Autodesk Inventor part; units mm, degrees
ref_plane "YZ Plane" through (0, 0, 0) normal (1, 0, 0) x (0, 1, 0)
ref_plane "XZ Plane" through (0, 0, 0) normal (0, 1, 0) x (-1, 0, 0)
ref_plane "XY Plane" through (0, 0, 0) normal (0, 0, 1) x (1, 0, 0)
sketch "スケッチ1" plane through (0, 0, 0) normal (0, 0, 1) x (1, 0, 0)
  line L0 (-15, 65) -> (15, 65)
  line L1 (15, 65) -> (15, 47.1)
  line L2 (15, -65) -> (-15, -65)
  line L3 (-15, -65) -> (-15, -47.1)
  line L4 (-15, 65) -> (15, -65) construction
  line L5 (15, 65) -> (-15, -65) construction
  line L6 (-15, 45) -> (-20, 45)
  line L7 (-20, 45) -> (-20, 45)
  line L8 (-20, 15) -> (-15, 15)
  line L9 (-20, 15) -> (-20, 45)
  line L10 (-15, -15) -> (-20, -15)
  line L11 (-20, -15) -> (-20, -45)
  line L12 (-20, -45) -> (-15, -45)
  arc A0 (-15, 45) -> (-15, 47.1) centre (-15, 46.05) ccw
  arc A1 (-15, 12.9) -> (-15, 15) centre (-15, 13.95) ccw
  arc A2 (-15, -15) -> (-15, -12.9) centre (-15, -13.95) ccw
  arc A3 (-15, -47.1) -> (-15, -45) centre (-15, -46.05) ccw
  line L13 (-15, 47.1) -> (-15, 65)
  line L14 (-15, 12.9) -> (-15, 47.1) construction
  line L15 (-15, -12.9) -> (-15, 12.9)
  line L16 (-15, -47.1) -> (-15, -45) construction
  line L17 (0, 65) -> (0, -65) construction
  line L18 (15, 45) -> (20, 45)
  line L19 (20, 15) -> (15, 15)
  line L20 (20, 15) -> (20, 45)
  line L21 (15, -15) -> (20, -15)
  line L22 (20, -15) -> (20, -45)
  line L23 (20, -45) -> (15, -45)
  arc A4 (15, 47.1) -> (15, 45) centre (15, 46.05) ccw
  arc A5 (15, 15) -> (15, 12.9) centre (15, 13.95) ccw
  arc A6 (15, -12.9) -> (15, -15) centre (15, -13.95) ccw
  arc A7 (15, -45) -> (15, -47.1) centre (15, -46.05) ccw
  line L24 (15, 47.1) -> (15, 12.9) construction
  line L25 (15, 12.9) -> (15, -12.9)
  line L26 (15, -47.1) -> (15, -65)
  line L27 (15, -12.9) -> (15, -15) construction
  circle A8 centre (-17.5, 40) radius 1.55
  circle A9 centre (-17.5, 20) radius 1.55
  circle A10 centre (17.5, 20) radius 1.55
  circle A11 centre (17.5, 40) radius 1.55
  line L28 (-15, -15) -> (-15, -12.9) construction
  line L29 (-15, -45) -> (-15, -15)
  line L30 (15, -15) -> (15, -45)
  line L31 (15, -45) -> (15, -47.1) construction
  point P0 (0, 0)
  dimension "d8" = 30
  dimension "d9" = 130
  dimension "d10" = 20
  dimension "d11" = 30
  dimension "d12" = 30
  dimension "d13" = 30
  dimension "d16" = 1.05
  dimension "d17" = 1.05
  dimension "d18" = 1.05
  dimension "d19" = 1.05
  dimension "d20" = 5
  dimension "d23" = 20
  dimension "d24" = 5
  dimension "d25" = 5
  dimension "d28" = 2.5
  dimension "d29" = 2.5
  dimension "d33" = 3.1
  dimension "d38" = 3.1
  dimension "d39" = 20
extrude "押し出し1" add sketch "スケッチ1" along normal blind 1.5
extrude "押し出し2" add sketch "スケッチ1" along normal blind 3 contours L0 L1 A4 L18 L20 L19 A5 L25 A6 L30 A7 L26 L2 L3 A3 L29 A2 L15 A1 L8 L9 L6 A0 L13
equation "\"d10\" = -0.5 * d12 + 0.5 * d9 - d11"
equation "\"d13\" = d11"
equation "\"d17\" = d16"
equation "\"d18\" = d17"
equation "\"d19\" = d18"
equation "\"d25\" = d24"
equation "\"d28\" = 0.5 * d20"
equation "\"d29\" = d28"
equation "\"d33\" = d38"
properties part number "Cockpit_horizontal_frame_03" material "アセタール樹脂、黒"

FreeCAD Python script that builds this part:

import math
import FreeCAD as App
import Part
import Sketcher
from FreeCAD import Vector
Q = App.Units.Quantity

doc = App.newDocument("Part")
body = doc.addObject("PartDesign::Body", "Body")

# Sketch on XY plane
sketch1 = doc.addObject("Sketcher::SketchObject", "Sketch")
body.addObject(sketch1)
sketch1.AttachmentSupport = (doc.XY_Plane, [""])
sketch1.MapMode = "FlatFace"
sketch1.addGeometry(Part.LineSegment(Vector(15, 65, 0), Vector(-15, 65, 0)), False)
sketch1.addGeometry(Part.LineSegment(Vector(-15, 65, 0), Vector(-15, 47.1, 0)), False)
sketch1.addGeometry(Part.ArcOfCircle(Part.Circle(Vector(-15, 46, 0), Vector(0, 0, 1), 1), math.radians(-90), math.radians(90)), False)
sketch1.addGeometry(Part.LineSegment(Vector(-15, 45, 0), Vector(-20, 45, 0)), False)
sketch1.addGeometry(Part.LineSegment(Vector(-20, 45, 0), Vector(-20, 15, 0)), False)
sketch1.addGeometry(Part.LineSegment(Vector(-20, 15, 0), Vector(-15, 15, 0)), False)
sketch1.addGeometry(Part.ArcOfCircle(Part.Circle(Vector(-15, 13.9, 0), Vector(0, 0, 1), 1), math.radians(-90), math.radians(90)), False)
sketch1.addGeometry(Part.LineSegment(Vector(-15, 12.9, 0), Vector(-15, -12.9, 0)), False)
sketch1.addGeometry(Part.ArcOfCircle(Part.Circle(Vector(-15, -13.9, 0), Vector(0, 0, 1), 1.1), math.radians(-90), math.radians(90)), False)
sketch1.addGeometry(Part.LineSegment(Vector(-15, -15, 0), Vector(-20, -15, 0)), False)
sketch1.addGeometry(Part.LineSegment(Vector(-20, -15, 0), Vector(-20, -45, 0)), False)
sketch1.addGeometry(Part.LineSegment(Vector(-20, -45, 0), Vector(-15, -45, 0)), False)
sketch1.addGeometry(Part.ArcOfCircle(Part.Circle(Vector(-15, -46, 0), Vector(0, 0, 1), 1.1), math.radians(-90), math.radians(90)), False)
sketch1.addGeometry(Part.LineSegment(Vector(-15, -47.1, 0), Vector(-15, -65, 0)), False)
sketch1.addGeometry(Part.LineSegment(Vector(-15, -65, 0), Vector(15, -65, 0)), False)
sketch1.addGeometry(Part.LineSegment(Vector(15, -65, 0), Vector(15, -47.1, 0)), False)
sketch1.addGeometry(Part.ArcOfCircle(Part.Circle(Vector(15, -46, 0), Vector(0, 0, 1), 1), math.radians(90), math.radians(270)), False)
sketch1.addGeometry(Part.LineSegment(Vector(15, -45, 0), Vector(20, -45, 0)), False)
sketch1.addGeometry(Part.LineSegment(Vector(20, -45, 0), Vector(20, -15, 0)), False)
sketch1.addGeometry(Part.LineSegment(Vector(20, -15, 0), Vector(15, -15, 0)), False)
sketch1.addGeometry(Part.ArcOfCircle(Part.Circle(Vector(15, -13.9, 0), Vector(0, 0, 1), 1), math.radians(90), math.radians(270)), False)
sketch1.addGeometry(Part.LineSegment(Vector(15, -12.9, 0), Vector(15, 12.9, 0)), False)
sketch1.addGeometry(Part.ArcOfCircle(Part.Circle(Vector(15, 13.9, 0), Vector(0, 0, 1), 1.1), math.radians(90), math.radians(270)), False)
sketch1.addGeometry(Part.LineSegment(Vector(15, 15, 0), Vector(20, 15, 0)), False)
sketch1.addGeometry(Part.LineSegment(Vector(20, 15, 0), Vector(20, 45, 0)), False)
sketch1.addGeometry(Part.LineSegment(Vector(20, 45, 0), Vector(15, 45, 0)), False)
sketch1.addGeometry(Part.ArcOfCircle(Part.Circle(Vector(15, 46, 0), Vector(0, 0, 1), 1.1), math.radians(90), math.radians(270)), False)
sketch1.addGeometry(Part.LineSegment(Vector(15, 47.1, 0), Vector(15, 65, 0)), False)
sketch1.addGeometry(Part.Circle(Vector(-17.5, 20, 0), Vector(0, 0, 1), 1.6), False)
sketch1.addGeometry(Part.Circle(Vector(-17.5, 40, 0), Vector(0, 0, 1), 1.6), False)
sketch1.addGeometry(Part.Circle(Vector(17.5, 20, 0), Vector(0, 0, 1), 1.6), False)
sketch1.addGeometry(Part.Circle(Vector(17.5, 40, 0), Vector(0, 0, 1), 1.6), False)
sketch1.addConstraint(Sketcher.Constraint("Coincident", 0, 2, 1, 1))
sketch1.addConstraint(Sketcher.Constraint("Coincident", 1, 2, 2, 2))
sketch1.addConstraint(Sketcher.Constraint("Tangent", 2, 1, 3, 1))
sketch1.addConstraint(Sketcher.Constraint("Coincident", 3, 2, 4, 1))
sketch1.addConstraint(Sketcher.Constraint("Coincident", 4, 2, 5, 1))
sketch1.addConstraint(Sketcher.Constraint("Tangent", 5, 2, 6, 2))
sketch1.addConstraint(Sketcher.Constraint("Coincident", 6, 1, 7, 1))
sketch1.addConstraint(Sketcher.Constraint("Coincident", 7, 2, 8, 2))
sketch1.addConstraint(Sketcher.Constraint("Tangent", 8, 1, 9, 1))
sketch1.addConstraint(Sketcher.Constraint("Coincident", 9, 2, 10, 1))
sketch1.addConstraint(Sketcher.Constraint("Coincident", 10, 2, 11, 1))
sketch1.addConstraint(Sketcher.Constraint("Tangent", 11, 2, 12, 2))
sketch1.addConstraint(Sketcher.Constraint("Coincident", 12, 1, 13, 1))
sketch1.addConstraint(Sketcher.Constraint("Coincident", 13, 2, 14, 1))
sketch1.addConstraint(Sketcher.Constraint("Coincident", 14, 2, 15, 1))
sketch1.addConstraint(Sketcher.Constraint("Coincident", 15, 2, 16, 2))
sketch1.addConstraint(Sketcher.Constraint("Tangent", 16, 1, 17, 1))
sketch1.addConstraint(Sketcher.Constraint("Coincident", 17, 2, 18, 1))
sketch1.addConstraint(Sketcher.Constraint("Coincident", 18, 2, 19, 1))
sketch1.addConstraint(Sketcher.Constraint("Tangent", 19, 2, 20, 2))
sketch1.addConstraint(Sketcher.Constraint("Coincident", 20, 1, 21, 1))
sketch1.addConstraint(Sketcher.Constraint("Coincident", 21, 2, 22, 2))
sketch1.addConstraint(Sketcher.Constraint("Tangent", 22, 1, 23, 1))
sketch1.addConstraint(Sketcher.Constraint("Coincident", 23, 2, 24, 1))
sketch1.addConstraint(Sketcher.Constraint("Coincident", 24, 2, 25, 1))
sketch1.addConstraint(Sketcher.Constraint("Tangent", 25, 2, 26, 2))
sketch1.addConstraint(Sketcher.Constraint("Coincident", 26, 1, 27, 1))
sketch1.addConstraint(Sketcher.Constraint("Coincident", 27, 2, 0, 1))
sketch1.addConstraint(Sketcher.Constraint("Horizontal", 0))
sketch1.addConstraint(Sketcher.Constraint("Vertical", 1))
sketch1.addConstraint(Sketcher.Constraint("Horizontal", 3))
sketch1.addConstraint(Sketcher.Constraint("Vertical", 4))
sketch1.addConstraint(Sketcher.Constraint("Horizontal", 5))
sketch1.addConstraint(Sketcher.Constraint("Vertical", 7))
sketch1.addConstraint(Sketcher.Constraint("Horizontal", 9))
sketch1.addConstraint(Sketcher.Constraint("Vertical", 10))
sketch1.addConstraint(Sketcher.Constraint("Horizontal", 11))
sketch1.addConstraint(Sketcher.Constraint("Vertical", 13))
sketch1.addConstraint(Sketcher.Constraint("Horizontal", 14))
sketch1.addConstraint(Sketcher.Constraint("Vertical", 15))
sketch1.addConstraint(Sketcher.Constraint("Horizontal", 17))
sketch1.addConstraint(Sketcher.Constraint("Vertical", 18))
sketch1.addConstraint(Sketcher.Constraint("Horizontal", 19))
sketch1.addConstraint(Sketcher.Constraint("Vertical", 21))
sketch1.addConstraint(Sketcher.Constraint("Horizontal", 23))
sketch1.addConstraint(Sketcher.Constraint("Vertical", 24))
sketch1.addConstraint(Sketcher.Constraint("Horizontal", 25))
sketch1.addConstraint(Sketcher.Constraint("Vertical", 27))
sketch1.addConstraint(Sketcher.Constraint("Equal", 2, 6))
sketch1.addConstraint(Sketcher.Constraint("Equal", 6, 8))
sketch1.addConstraint(Sketcher.Constraint("Equal", 8, 12))
sketch1.addConstraint(Sketcher.Constraint("Equal", 12, 16))
sketch1.addConstraint(Sketcher.Constraint("Equal", 16, 20))
sketch1.addConstraint(Sketcher.Constraint("Equal", 20, 22))
sketch1.addConstraint(Sketcher.Constraint("Equal", 22, 26))
sketch1.addConstraint(Sketcher.Constraint("Equal", 28, 29))
sketch1.addConstraint(Sketcher.Constraint("Equal", 29, 30))
sketch1.addConstraint(Sketcher.Constraint("Equal", 30, 31))
sketch1.addConstraint(Sketcher.Constraint("Symmetric", 2, 3, 16, 3, -1, 1))
sketch1.addConstraint(Sketcher.Constraint("Symmetric", 6, 3, 20, 3, -1, 1))
sketch1.addConstraint(Sketcher.Constraint("Symmetric", 8, 3, 22, 3, -1, 1))
sketch1.addConstraint(Sketcher.Constraint("Symmetric", 12, 3, 26, 3, -1, 1))
sketch1.addConstraint(Sketcher.Constraint("Symmetric", 0, 2, 14, 2, -1, 1))
sketch1.addConstraint(Sketcher.Constraint("Symmetric", 12, 3, 16, 3, -2))
sketch1.addConstraint(Sketcher.Constraint("Symmetric", 8, 3, 20, 3, -2))
sketch1.addConstraint(Sketcher.Constraint("Symmetric", 28, 3, 30, 3, -2))
sketch1.addConstraint(Sketcher.Constraint("Symmetric", 29, 3, 31, 3, -2))
sketch1.addConstraint(Sketcher.Constraint("Vertical", 2, 3, 6, 3))
sketch1.addConstraint(Sketcher.Constraint("Vertical", 28, 3, 29, 3))
sketch1.addConstraint(Sketcher.Constraint("Vertical", 12, 3, 0, 2))
sketch1.addConstraint(Sketcher.Constraint("Vertical", 5, 2, 6, 1))
sketch1.addConstraint(Sketcher.Constraint("Vertical", 4, 2, 9, 2))
sketch1.addConstraint(Sketcher.Constraint("Vertical", 11, 2, 12, 1))
sketch1.addConstraint(Sketcher.Constraint("Vertical", 19, 2, 20, 1))
sketch1.addConstraint(Sketcher.Constraint("Vertical", 18, 2, 23, 2))
sketch1.addConstraint(Sketcher.Constraint("Vertical", 25, 2, 26, 1))
sketch1.addConstraint(Sketcher.Constraint("Equal", 11, 17))
sketch1.addConstraint(Sketcher.Constraint("Equal", 14, 4))
sketch1.addConstraint(Sketcher.Constraint("Diameter", 28, Q("3.1 mm")))
sketch1.addConstraint(Sketcher.Constraint("DistanceX", 0, 2, 0, 1, Q("30 mm")))
sketch1.addConstraint(Sketcher.Constraint("DistanceX", 3, 2, 3, 1, Q("5 mm")))
sketch1.addConstraint(Sketcher.Constraint("Radius", 2, Q("1.05 mm")))
sketch1.addConstraint(Sketcher.Constraint("DistanceY", -1, 1, 28, 3, Q("20 mm")))
sketch1.addConstraint(Sketcher.Constraint("DistanceY", 28, 3, 29, 3, Q("20 mm")))
sketch1.addConstraint(Sketcher.Constraint("DistanceY", 29, 3, 2, 1, Q("5 mm")))
sketch1.addConstraint(Sketcher.Constraint("DistanceY", 2, 1, 0, 2, Q("20 mm")))
sketch1.addConstraint(Sketcher.Constraint("DistanceX", 28, 3, 6, 3, Q("2.5 mm")))
pad1 = doc.addObject("PartDesign::Pad", "Pad")
body.addObject(pad1)
pad1.Profile = sketch1
pad1.Length = 1.5

# Sketch on XY plane
sketch2 = doc.addObject("Sketcher::SketchObject", "Sketch001")
body.addObject(sketch2)
sketch2.AttachmentSupport = (doc.XY_Plane, [""])
sketch2.MapMode = "FlatFace"
sketch2.addGeometry(Part.LineSegment(Vector(15, 65, 0), Vector(-15, 65, 0)), False)
sketch2.addGeometry(Part.LineSegment(Vector(-15, 65, 0), Vector(-15, 47.1, 0)), False)
sketch2.addGeometry(Part.ArcOfCircle(Part.Circle(Vector(-15, 46, 0), Vector(0, 0, 1), 1), math.radians(-90), math.radians(90)), False)
sketch2.addGeometry(Part.LineSegment(Vector(-15, 45, 0), Vector(-20, 45, 0)), False)
sketch2.addGeometry(Part.LineSegment(Vector(-20, 45, 0), Vector(-20, 15, 0)), False)
sketch2.addGeometry(Part.LineSegment(Vector(-20, 15, 0), Vector(-15, 15, 0)), False)
sketch2.addGeometry(Part.ArcOfCircle(Part.Circle(Vector(-15, 13.9, 0), Vector(0, 0, 1), 1), math.radians(-90), math.radians(90)), False)
sketch2.addGeometry(Part.LineSegment(Vector(-15, 12.9, 0), Vector(-15, -12.9, 0)), False)
sketch2.addGeometry(Part.ArcOfCircle(Part.Circle(Vector(-15, -13.9, 0), Vector(0, 0, 1), 1.1), math.radians(-90), math.radians(90)), False)
sketch2.addGeometry(Part.LineSegment(Vector(-15, -15, 0), Vector(-15, -45, 0)), False)
sketch2.addGeometry(Part.ArcOfCircle(Part.Circle(Vector(-15, -46, 0), Vector(0, 0, 1), 1.1), math.radians(-90), math.radians(90)), False)
sketch2.addGeometry(Part.LineSegment(Vector(-15, -47.1, 0), Vector(-15, -65, 0)), False)
sketch2.addGeometry(Part.LineSegment(Vector(-15, -65, 0), Vector(15, -65, 0)), False)
sketch2.addGeometry(Part.LineSegment(Vector(15, -65, 0), Vector(15, -47.1, 0)), False)
sketch2.addGeometry(Part.ArcOfCircle(Part.Circle(Vector(15, -46, 0), Vector(0, 0, 1), 1), math.radians(90), math.radians(270)), False)
sketch2.addGeometry(Part.LineSegment(Vector(15, -45, 0), Vector(15, -15, 0)), False)
sketch2.addGeometry(Part.ArcOfCircle(Part.Circle(Vector(15, -13.9, 0), Vector(0, 0, 1), 1), math.radians(90), math.radians(270)), False)
sketch2.addGeometry(Part.LineSegment(Vector(15, -12.9, 0), Vector(15, 12.9, 0)), False)
sketch2.addGeometry(Part.ArcOfCircle(Part.Circle(Vector(15, 13.9, 0), Vector(0, 0, 1), 1.1), math.radians(90), math.radians(270)), False)
sketch2.addGeometry(Part.LineSegment(Vector(15, 15, 0), Vector(20, 15, 0)), False)
sketch2.addGeometry(Part.LineSegment(Vector(20, 15, 0), Vector(20, 45, 0)), False)
sketch2.addGeometry(Part.LineSegment(Vector(20, 45, 0), Vector(15, 45, 0)), False)
sketch2.addGeometry(Part.ArcOfCircle(Part.Circle(Vector(15, 46, 0), Vector(0, 0, 1), 1.1), math.radians(90), math.radians(270)), False)
sketch2.addGeometry(Part.LineSegment(Vector(15, 47.1, 0), Vector(15, 65, 0)), False)
sketch2.addGeometry(Part.Circle(Vector(-17.5, 20, 0), Vector(0, 0, 1), 1.6), False)
sketch2.addGeometry(Part.Circle(Vector(-17.5, 40, 0), Vector(0, 0, 1), 1.6), False)
sketch2.addGeometry(Part.Circle(Vector(17.5, 20, 0), Vector(0, 0, 1), 1.6), False)
sketch2.addGeometry(Part.Circle(Vector(17.5, 40, 0), Vector(0, 0, 1), 1.6), False)
sketch2.addConstraint(Sketcher.Constraint("Coincident", 0, 2, 1, 1))
sketch2.addConstraint(Sketcher.Constraint("Coincident", 1, 2, 2, 2))
sketch2.addConstraint(Sketcher.Constraint("Tangent", 2, 1, 3, 1))
sketch2.addConstraint(Sketcher.Constraint("Coincident", 3, 2, 4, 1))
sketch2.addConstraint(Sketcher.Constraint("Coincident", 4, 2, 5, 1))
sketch2.addConstraint(Sketcher.Constraint("Tangent", 5, 2, 6, 2))
sketch2.addConstraint(Sketcher.Constraint("Coincident", 6, 1, 7, 1))
sketch2.addConstraint(Sketcher.Constraint("Coincident", 7, 2, 8, 2))
sketch2.addConstraint(Sketcher.Constraint("Coincident", 8, 1, 9, 1))
sketch2.addConstraint(Sketcher.Constraint("Coincident", 9, 2, 10, 2))
sketch2.addConstraint(Sketcher.Constraint("Coincident", 10, 1, 11, 1))
sketch2.addConstraint(Sketcher.Constraint("Coincident", 11, 2, 12, 1))
sketch2.addConstraint(Sketcher.Constraint("Coincident", 12, 2, 13, 1))
sketch2.addConstraint(Sketcher.Constraint("Coincident", 13, 2, 14, 2))
sketch2.addConstraint(Sketcher.Constraint("Coincident", 14, 1, 15, 1))
sketch2.addConstraint(Sketcher.Constraint("Coincident", 15, 2, 16, 2))
sketch2.addConstraint(Sketcher.Constraint("Coincident", 16, 1, 17, 1))
sketch2.addConstraint(Sketcher.Constraint("Coincident", 17, 2, 18, 2))
sketch2.addConstraint(Sketcher.Constraint("Tangent", 18, 1, 19, 1))
sketch2.addConstraint(Sketcher.Constraint("Coincident", 19, 2, 20, 1))
sketch2.addConstraint(Sketcher.Constraint("Coincident", 20, 2, 21, 1))
sketch2.addConstraint(Sketcher.Constraint("Tangent", 21, 2, 22, 2))
sketch2.addConstraint(Sketcher.Constraint("Coincident", 22, 1, 23, 1))
sketch2.addConstraint(Sketcher.Constraint("Coincident", 23, 2, 0, 1))
sketch2.addConstraint(Sketcher.Constraint("Horizontal", 0))
sketch2.addConstraint(Sketcher.Constraint("Vertical", 1))
sketch2.addConstraint(Sketcher.Constraint("Horizontal", 3))
sketch2.addConstraint(Sketcher.Constraint("Vertical", 4))
sketch2.addConstraint(Sketcher.Constraint("Horizontal", 5))
sketch2.addConstraint(Sketcher.Constraint("Vertical", 7))
sketch2.addConstraint(Sketcher.Constraint("Vertical", 9))
sketch2.addConstraint(Sketcher.Constraint("Vertical", 11))
sketch2.addConstraint(Sketcher.Constraint("Horizontal", 12))
sketch2.addConstraint(Sketcher.Constraint("Vertical", 13))
sketch2.addConstraint(Sketcher.Constraint("Vertical", 15))
sketch2.addConstraint(Sketcher.Constraint("Vertical", 17))
sketch2.addConstraint(Sketcher.Constraint("Horizontal", 19))
sketch2.addConstraint(Sketcher.Constraint("Vertical", 20))
sketch2.addConstraint(Sketcher.Constraint("Horizontal", 21))
sketch2.addConstraint(Sketcher.Constraint("Vertical", 23))
sketch2.addConstraint(Sketcher.Constraint("Equal", 2, 6))
sketch2.addConstraint(Sketcher.Constraint("Equal", 6, 8))
sketch2.addConstraint(Sketcher.Constraint("Equal", 8, 10))
sketch2.addConstraint(Sketcher.Constraint("Equal", 10, 14))
sketch2.addConstraint(Sketcher.Constraint("Equal", 14, 16))
sketch2.addConstraint(Sketcher.Constraint("Equal", 16, 18))
sketch2.addConstraint(Sketcher.Constraint("Equal", 18, 22))
sketch2.addConstraint(Sketcher.Constraint("Equal", 24, 25))
sketch2.addConstraint(Sketcher.Constraint("Equal", 25, 26))
sketch2.addConstraint(Sketcher.Constraint("Equal", 26, 27))
sketch2.addConstraint(Sketcher.Constraint("Symmetric", 2, 3, 14, 3, -1, 1))
sketch2.addConstraint(Sketcher.Constraint("Symmetric", 6, 3, 16, 3, -1, 1))
sketch2.addConstraint(Sketcher.Constraint("Symmetric", 8, 3, 18, 3, -1, 1))
sketch2.addConstraint(Sketcher.Constraint("Symmetric", 10, 3, 22, 3, -1, 1))
sketch2.addConstraint(Sketcher.Constraint("Symmetric", 0, 2, 12, 2, -1, 1))
sketch2.addConstraint(Sketcher.Constraint("Symmetric", 10, 3, 14, 3, -2))
sketch2.addConstraint(Sketcher.Constraint("Symmetric", 8, 3, 16, 3, -2))
sketch2.addConstraint(Sketcher.Constraint("Symmetric", 24, 3, 26, 3, -2))
sketch2.addConstraint(Sketcher.Constraint("Symmetric", 25, 3, 27, 3, -2))
sketch2.addConstraint(Sketcher.Constraint("Vertical", 2, 3, 6, 3))
sketch2.addConstraint(Sketcher.Constraint("Vertical", 24, 3, 25, 3))
sketch2.addConstraint(Sketcher.Constraint("Vertical", 10, 3, 0, 2))
sketch2.addConstraint(Sketcher.Constraint("Vertical", 5, 2, 6, 1))
sketch2.addConstraint(Sketcher.Constraint("Vertical", 7, 2, 8, 1))
sketch2.addConstraint(Sketcher.Constraint("Vertical", 9, 2, 10, 1))
sketch2.addConstraint(Sketcher.Constraint("Vertical", 13, 2, 14, 1))
sketch2.addConstraint(Sketcher.Constraint("Vertical", 15, 2, 16, 1))
sketch2.addConstraint(Sketcher.Constraint("Vertical", 21, 2, 22, 1))
sketch2.addConstraint(Sketcher.Constraint("Equal", 5, 19))
sketch2.addConstraint(Sketcher.Constraint("Equal", 12, 4))
sketch2.addConstraint(Sketcher.Constraint("Diameter", 24, Q("3.1 mm")))
sketch2.addConstraint(Sketcher.Constraint("DistanceX", 0, 2, 0, 1, Q("30 mm")))
sketch2.addConstraint(Sketcher.Constraint("DistanceX", 3, 2, 3, 1, Q("5 mm")))
sketch2.addConstraint(Sketcher.Constraint("Radius", 2, Q("1.05 mm")))
sketch2.addConstraint(Sketcher.Constraint("DistanceY", -1, 1, 24, 3, Q("20 mm")))
sketch2.addConstraint(Sketcher.Constraint("DistanceY", 24, 3, 25, 3, Q("20 mm")))
sketch2.addConstraint(Sketcher.Constraint("DistanceY", 25, 3, 2, 1, Q("5 mm")))
sketch2.addConstraint(Sketcher.Constraint("DistanceY", 2, 1, 0, 2, Q("20 mm")))
sketch2.addConstraint(Sketcher.Constraint("DistanceX", 24, 3, 6, 3, Q("2.5 mm")))
pad2 = doc.addObject("PartDesign::Pad", "Pad001")
body.addObject(pad2)
pad2.Profile = sketch2
pad2.Length = 3

doc.recompute()
